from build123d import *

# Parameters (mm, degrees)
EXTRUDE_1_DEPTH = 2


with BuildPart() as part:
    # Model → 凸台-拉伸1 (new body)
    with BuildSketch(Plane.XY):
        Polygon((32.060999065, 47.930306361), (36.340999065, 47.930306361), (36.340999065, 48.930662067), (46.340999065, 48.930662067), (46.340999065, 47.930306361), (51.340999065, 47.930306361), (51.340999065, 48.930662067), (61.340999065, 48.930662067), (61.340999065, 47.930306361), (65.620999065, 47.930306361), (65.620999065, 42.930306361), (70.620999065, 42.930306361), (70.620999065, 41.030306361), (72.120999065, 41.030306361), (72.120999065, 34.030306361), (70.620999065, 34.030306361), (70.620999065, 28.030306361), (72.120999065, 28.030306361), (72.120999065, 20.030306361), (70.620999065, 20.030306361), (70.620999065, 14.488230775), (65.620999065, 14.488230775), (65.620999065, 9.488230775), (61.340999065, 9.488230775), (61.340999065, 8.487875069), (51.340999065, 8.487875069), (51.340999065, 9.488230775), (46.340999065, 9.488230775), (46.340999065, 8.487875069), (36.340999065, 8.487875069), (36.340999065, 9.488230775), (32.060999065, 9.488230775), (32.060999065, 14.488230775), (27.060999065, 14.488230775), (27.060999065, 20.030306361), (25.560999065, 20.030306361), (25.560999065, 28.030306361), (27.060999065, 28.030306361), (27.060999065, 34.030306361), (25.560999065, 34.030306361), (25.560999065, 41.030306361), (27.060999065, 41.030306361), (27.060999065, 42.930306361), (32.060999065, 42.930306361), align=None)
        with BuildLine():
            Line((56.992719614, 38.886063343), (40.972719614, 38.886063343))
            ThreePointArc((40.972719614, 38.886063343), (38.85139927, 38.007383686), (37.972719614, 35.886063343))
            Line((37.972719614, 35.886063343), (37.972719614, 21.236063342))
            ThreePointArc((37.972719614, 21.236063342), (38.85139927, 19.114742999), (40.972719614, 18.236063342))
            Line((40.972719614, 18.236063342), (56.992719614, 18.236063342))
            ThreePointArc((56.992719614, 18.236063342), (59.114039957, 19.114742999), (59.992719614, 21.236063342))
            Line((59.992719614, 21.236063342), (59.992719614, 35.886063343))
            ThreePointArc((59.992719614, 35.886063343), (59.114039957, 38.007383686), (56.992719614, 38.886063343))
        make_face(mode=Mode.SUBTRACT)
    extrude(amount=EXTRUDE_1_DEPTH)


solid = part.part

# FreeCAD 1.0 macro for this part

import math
import FreeCAD as App
import Part
import Sketcher
from FreeCAD import Vector

doc = App.newDocument("Part")
params = doc.addObject("Spreadsheet::Sheet", "Params")
for row, (alias, value) in enumerate([
    ("sketch1_radius", "3 mm"),
    ("sketch1_width", "5 mm"),
    ("sketch1_width2", "10 mm"),
    ("sketch1_height", "7 mm"),
    ("sketch1_height2", "6 mm"),
    ("pad1_length", "2 mm"),
], start=1):
    params.set(f"A{row}", alias)
    params.set(f"B{row}", "=" + value)
    params.setAlias(f"B{row}", alias)

body = doc.addObject("PartDesign::Body", "Body")

sketch1 = body.newObject("Sketcher::SketchObject", "Sketch")
sketch1.AttachmentSupport = (doc.getObject("XY_Plane"), [""])
sketch1.MapMode = "FlatFace"
sketch1.addGeometry(Part.LineSegment(Vector(36.340999, 47.930306, 0), Vector(32.060999, 47.930306, 0)), False)
sketch1.addGeometry(Part.LineSegment(Vector(32.060999, 47.930306, 0), Vector(32.060999, 42.930306, 0)), False)
sketch1.addGeometry(Part.LineSegment(Vector(32.060999, 42.930306, 0), Vector(27.060999, 42.930306, 0)), False)
sketch1.addGeometry(Part.LineSegment(Vector(27.060999, 42.930306, 0), Vector(27.060999, 41.030306, 0)), False)
sketch1.addGeometry(Part.LineSegment(Vector(27.060999, 41.030306, 0), Vector(25.560999, 41.030306, 0)), False)
sketch1.addGeometry(Part.LineSegment(Vector(25.560999, 41.030306, 0), Vector(25.560999, 34.030306, 0)), False)
sketch1.addGeometry(Part.LineSegment(Vector(25.560999, 34.030306, 0), Vector(27.060999, 34.030306, 0)), False)
sketch1.addGeometry(Part.LineSegment(Vector(27.060999, 34.030306, 0), Vector(27.060999, 28.030306, 0)), False)
sketch1.addGeometry(Part.LineSegment(Vector(27.060999, 28.030306, 0), Vector(25.560999, 28.030306, 0)), False)
sketch1.addGeometry(Part.LineSegment(Vector(25.560999, 28.030306, 0), Vector(25.560999, 20.030306, 0)), False)
sketch1.addGeometry(Part.LineSegment(Vector(25.560999, 20.030306, 0), Vector(27.060999, 20.030306, 0)), False)
sketch1.addGeometry(Part.LineSegment(Vector(27.060999, 20.030306, 0), Vector(27.060999, 14.488231, 0)), False)
sketch1.addGeometry(Part.LineSegment(Vector(27.060999, 14.488231, 0), Vector(32.060999, 14.488231, 0)), False)
sketch1.addGeometry(Part.LineSegment(Vector(32.060999, 14.488231, 0), Vector(32.060999, 9.488231, 0)), False)
sketch1.addGeometry(Part.LineSegment(Vector(32.060999, 9.488231, 0), Vector(36.340999, 9.488231, 0)), False)
sketch1.addGeometry(Part.LineSegment(Vector(36.340999, 9.488231, 0), Vector(36.340999, 8.487875, 0)), False)
sketch1.addGeometry(Part.LineSegment(Vector(36.340999, 8.487875, 0), Vector(46.340999, 8.487875, 0)), False)
sketch1.addGeometry(Part.LineSegment(Vector(46.340999, 8.487875, 0), Vector(46.340999, 9.488231, 0)), False)
sketch1.addGeometry(Part.LineSegment(Vector(46.340999, 9.488231, 0), Vector(51.340999, 9.488231, 0)), False)
sketch1.addGeometry(Part.LineSegment(Vector(51.340999, 9.488231, 0), Vector(51.340999, 8.487875, 0)), False)
sketch1.addGeometry(Part.LineSegment(Vector(51.340999, 8.487875, 0), Vector(61.340999, 8.487875, 0)), False)
sketch1.addGeometry(Part.LineSegment(Vector(61.340999, 8.487875, 0), Vector(61.340999, 9.488231, 0)), False)
sketch1.addGeometry(Part.LineSegment(Vector(61.340999, 9.488231, 0), Vector(65.620999, 9.488231, 0)), False)
sketch1.addGeometry(Part.LineSegment(Vector(65.620999, 9.488231, 0), Vector(65.620999, 14.488231, 0)), False)
sketch1.addGeometry(Part.LineSegment(Vector(65.620999, 14.488231, 0), Vector(70.620999, 14.488231, 0)), False)
sketch1.addGeometry(Part.LineSegment(Vector(70.620999, 14.488231, 0), Vector(70.620999, 20.030306, 0)), False)
sketch1.addGeometry(Part.LineSegment(Vector(70.620999, 20.030306, 0), Vector(72.120999, 20.030306, 0)), False)
sketch1.addGeometry(Part.LineSegment(Vector(72.120999, 20.030306, 0), Vector(72.120999, 28.030306, 0)), False)
sketch1.addGeometry(Part.LineSegment(Vector(72.120999, 28.030306, 0), Vector(70.620999, 28.030306, 0)), False)
sketch1.addGeometry(Part.LineSegment(Vector(70.620999, 28.030306, 0), Vector(70.620999, 34.030306, 0)), False)
sketch1.addGeometry(Part.LineSegment(Vector(70.620999, 34.030306, 0), Vector(72.120999, 34.030306, 0)), False)
sketch1.addGeometry(Part.LineSegment(Vector(72.120999, 34.030306, 0), Vector(72.120999, 41.030306, 0)), False)
sketch1.addGeometry(Part.LineSegment(Vector(72.120999, 41.030306, 0), Vector(70.620999, 41.030306, 0)), False)
sketch1.addGeometry(Part.LineSegment(Vector(70.620999, 41.030306, 0), Vector(70.620999, 42.930306, 0)), False)
sketch1.addGeometry(Part.LineSegment(Vector(70.620999, 42.930306, 0), Vector(65.620999, 42.930306, 0)), False)
sketch1.addGeometry(Part.LineSegment(Vector(65.620999, 42.930306, 0), Vector(65.620999, 47.930306, 0)), False)
sketch1.addGeometry(Part.LineSegment(Vector(65.620999, 47.930306, 0), Vector(61.340999, 47.930306, 0)), False)
sketch1.addGeometry(Part.LineSegment(Vector(61.340999, 47.930306, 0), Vector(61.340999, 48.930662, 0)), False)
sketch1.addGeometry(Part.LineSegment(Vector(61.340999, 48.930662, 0), Vector(51.340999, 48.930662, 0)), False)
sketch1.addGeometry(Part.LineSegment(Vector(51.340999, 48.930662, 0), Vector(51.340999, 47.930306, 0)), False)
sketch1.addGeometry(Part.LineSegment(Vector(51.340999, 47.930306, 0), Vector(46.340999, 47.930306, 0)), False)
sketch1.addGeometry(Part.LineSegment(Vector(46.340999, 47.930306, 0), Vector(46.340999, 48.930662, 0)), False)
sketch1.addGeometry(Part.LineSegment(Vector(46.340999, 48.930662, 0), Vector(36.340999, 48.930662, 0)), False)
sketch1.addGeometry(Part.LineSegment(Vector(36.340999, 48.930662, 0), Vector(36.340999, 47.930306, 0)), False)
sketch1.addGeometry(Part.ArcOfCircle(Part.Circle(Vector(56.99272, 35.886063, 0), Vector(0, 0, 1), 3), math.radians(0), math.radians(90)), False)
sketch1.addGeometry(Part.LineSegment(Vector(59.99272, 35.886063, 0), Vector(59.99272, 21.236063, 0)), False)
sketch1.addGeometry(Part.ArcOfCircle(Part.Circle(Vector(56.99272, 21.236063, 0), Vector(0, 0, 1), 3), math.radians(-90), math.radians(0)), False)
sketch1.addGeometry(Part.LineSegment(Vector(56.99272, 18.236063, 0), Vector(40.97272, 18.236063, 0)), False)
sketch1.addGeometry(Part.ArcOfCircle(Part.Circle(Vector(40.97272, 21.236063, 0), Vector(0, 0, 1), 3), math.radians(180), math.radians(270)), False)
sketch1.addGeometry(Part.LineSegment(Vector(37.97272, 21.236063, 0), Vector(37.97272, 35.886063, 0)), False)
sketch1.addGeometry(Part.ArcOfCircle(Part.Circle(Vector(40.97272, 35.886063, 0), Vector(0, 0, 1), 3), math.radians(90), math.radians(180)), False)
sketch1.addGeometry(Part.LineSegment(Vector(40.97272, 38.886063, 0), Vector(56.99272, 38.886063, 0)), False)
sketch1.addConstraint(Sketcher.Constraint("Coincident", 0, 2, 1, 1))
sketch1.addConstraint(Sketcher.Constraint("Coincident", 1, 2, 2, 1))
sketch1.addConstraint(Sketcher.Constraint("Coincident", 2, 2, 3, 1))
sketch1.addConstraint(Sketcher.Constraint("Coincident", 3, 2, 4, 1))
sketch1.addConstraint(Sketcher.Constraint("Coincident", 4, 2, 5, 1))
sketch1.addConstraint(Sketcher.Constraint("Coincident", 5, 2, 6, 1))
sketch1.addConstraint(Sketcher.Constraint("Coincident", 6, 2, 7, 1))
sketch1.addConstraint(Sketcher.Constraint("Coincident", 7, 2, 8, 1))
sketch1.addConstraint(Sketcher.Constraint("Coincident", 8, 2, 9, 1))
sketch1.addConstraint(Sketcher.Constraint("Coincident", 9, 2, 10, 1))
sketch1.addConstraint(Sketcher.Constraint("Coincident", 10, 2, 11, 1))
sketch1.addConstraint(Sketcher.Constraint("Coincident", 11, 2, 12, 1))
sketch1.addConstraint(Sketcher.Constraint("Coincident", 12, 2, 13, 1))
sketch1.addConstraint(Sketcher.Constraint("Coincident", 13, 2, 14, 1))
sketch1.addConstraint(Sketcher.Constraint("Coincident", 14, 2, 15, 1))
sketch1.addConstraint(Sketcher.Constraint("Coincident", 15, 2, 16, 1))
sketch1.addConstraint(Sketcher.Constraint("Coincident", 16, 2, 17, 1))
sketch1.addConstraint(Sketcher.Constraint("Coincident", 17, 2, 18, 1))
sketch1.addConstraint(Sketcher.Constraint("Coincident", 18, 2, 19, 1))
sketch1.addConstraint(Sketcher.Constraint("Coincident", 19, 2, 20, 1))
sketch1.addConstraint(Sketcher.Constraint("Coincident", 20, 2, 21, 1))
sketch1.addConstraint(Sketcher.Constraint("Coincident", 21, 2, 22, 1))
sketch1.addConstraint(Sketcher.Constraint("Coincident", 22, 2, 23, 1))
sketch1.addConstraint(Sketcher.Constraint("Coincident", 23, 2, 24, 1))
sketch1.addConstraint(Sketcher.Constraint("Coincident", 24, 2, 25, 1))
sketch1.addConstraint(Sketcher.Constraint("Coincident", 25, 2, 26, 1))
sketch1.addConstraint(Sketcher.Constraint("Coincident", 26, 2, 27, 1))
sketch1.addConstraint(Sketcher.Constraint("Coincident", 27, 2, 28, 1))
sketch1.addConstraint(Sketcher.Constraint("Coincident", 28, 2, 29, 1))
sketch1.addConstraint(Sketcher.Constraint("Coincident", 29, 2, 30, 1))
sketch1.addConstraint(Sketcher.Constraint("Coincident", 30, 2, 31, 1))
sketch1.addConstraint(Sketcher.Constraint("Coincident", 31, 2, 32, 1))
sketch1.addConstraint(Sketcher.Constraint("Coincident", 32, 2, 33, 1))
sketch1.addConstraint(Sketcher.Constraint("Coincident", 33, 2, 34, 1))
sketch1.addConstraint(Sketcher.Constraint("Coincident", 34, 2, 35, 1))
sketch1.addConstraint(Sketcher.Constraint("Coincident", 35, 2, 36, 1))
sketch1.addConstraint(Sketcher.Constraint("Coincident", 36, 2, 37, 1))
sketch1.addConstraint(Sketcher.Constraint("Coincident", 37, 2, 38, 1))
sketch1.addConstraint(Sketcher.Constraint("Coincident", 38, 2, 39, 1))
sketch1.addConstraint(Sketcher.Constraint("Coincident", 39, 2, 40, 1))
sketch1.addConstraint(Sketcher.Constraint("Coincident", 40, 2, 41, 1))
sketch1.addConstraint(Sketcher.Constraint("Coincident", 41, 2, 42, 1))
sketch1.addConstraint(Sketcher.Constraint("Coincident", 42, 2, 43, 1))
sketch1.addConstraint(Sketcher.Constraint("Coincident", 43, 2, 0, 1))
sketch1.addConstraint(Sketcher.Constraint("Tangent", 44, 1, 45, 1))
sketch1.addConstraint(Sketcher.Constraint("Tangent", 45, 2, 46, 2))
sketch1.addConstraint(Sketcher.Constraint("Tangent", 46, 1, 47, 1))
sketch1.addConstraint(Sketcher.Constraint("Tangent", 47, 2, 48, 2))
sketch1.addConstraint(Sketcher.Constraint("Tangent", 48, 1, 49, 1))
sketch1.addConstraint(Sketcher.Constraint("Tangent", 49, 2, 50, 2))
sketch1.addConstraint(Sketcher.Constraint("Tangent", 50, 1, 51, 1))
sketch1.addConstraint(Sketcher.Constraint("Tangent", 51, 2, 44, 2))
sketch1.addConstraint(Sketcher.Constraint("Horizontal", 0))
sketch1.addConstraint(Sketcher.Constraint("Vertical", 1))
sketch1.addConstraint(Sketcher.Constraint("Horizontal", 2))
sketch1.addConstraint(Sketcher.Constraint("Vertical", 3))
sketch1.addConstraint(Sketcher.Constraint("Horizontal", 4))
sketch1.addConstraint(Sketcher.Constraint("Vertical", 5))
sketch1.addConstraint(Sketcher.Constraint("Horizontal", 6))
sketch1.addConstraint(Sketcher.Constraint("Vertical", 7))
sketch1.addConstraint(Sketcher.Constraint("Horizontal", 8))
sketch1.addConstraint(Sketcher.Constraint("Vertical", 9))
sketch1.addConstraint(Sketcher.Constraint("Horizontal", 10))
sketch1.addConstraint(Sketcher.Constraint("Vertical", 11))
sketch1.addConstraint(Sketcher.Constraint("Horizontal", 12))
sketch1.addConstraint(Sketcher.Constraint("Vertical", 13))
sketch1.addConstraint(Sketcher.Constraint("Horizontal", 14))
sketch1.addConstraint(Sketcher.Constraint("Vertical", 15))
sketch1.addConstraint(Sketcher.Constraint("Horizontal", 16))
sketch1.addConstraint(Sketcher.Constraint("Vertical", 17))
sketch1.addConstraint(Sketcher.Constraint("Horizontal", 18))
sketch1.addConstraint(Sketcher.Constraint("Vertical", 19))
sketch1.addConstraint(Sketcher.Constraint("Horizontal", 20))
sketch1.addConstraint(Sketcher.Constraint("Vertical", 21))
sketch1.addConstraint(Sketcher.Constraint("Horizontal", 22))
sketch1.addConstraint(Sketcher.Constraint("Vertical", 23))
sketch1.addConstraint(Sketcher.Constraint("Horizontal", 24))
sketch1.addConstraint(Sketcher.Constraint("Vertical", 25))
sketch1.addConstraint(Sketcher.Constraint("Horizontal", 26))
sketch1.addConstraint(Sketcher.Constraint("Vertical", 27))
sketch1.addConstraint(Sketcher.Constraint("Horizontal", 28))
sketch1.addConstraint(Sketcher.Constraint("Vertical", 29))
sketch1.addConstraint(Sketcher.Constraint("Horizontal", 30))
sketch1.addConstraint(Sketcher.Constraint("Vertical", 31))
sketch1.addConstraint(Sketcher.Constraint("Horizontal", 32))
sketch1.addConstraint(Sketcher.Constraint("Vertical", 33))
sketch1.addConstraint(Sketcher.Constraint("Horizontal", 34))
sketch1.addConstraint(Sketcher.Constraint("Vertical", 35))
sketch1.addConstraint(Sketcher.Constraint("Horizontal", 36))
sketch1.addConstraint(Sketcher.Constraint("Vertical", 37))
sketch1.addConstraint(Sketcher.Constraint("Horizontal", 38))
sketch1.addConstraint(Sketcher.Constraint("Vertical", 39))
sketch1.addConstraint(Sketcher.Constraint("Horizontal", 40))
sketch1.addConstraint(Sketcher.Constraint("Vertical", 41))
sketch1.addConstraint(Sketcher.Constraint("Horizontal", 42))
sketch1.addConstraint(Sketcher.Constraint("Vertical", 43))
sketch1.addConstraint(Sketcher.Constraint("Vertical", 45))
sketch1.addConstraint(Sketcher.Constraint("Horizontal", 47))
sketch1.addConstraint(Sketcher.Constraint("Vertical", 49))
sketch1.addConstraint(Sketcher.Constraint("Horizontal", 51))
sketch1.addConstraint(Sketcher.Constraint("Equal", 44, 46))
sketch1.addConstraint(Sketcher.Constraint("Equal", 46, 48))
sketch1.addConstraint(Sketcher.Constraint("Equal", 48, 50))
sketch1.addConstraint(Sketcher.Constraint("Horizontal", 14, 2, 17, 2))
sketch1.addConstraint(Sketcher.Constraint("Horizontal", 16, 2, 19, 2))
sketch1.addConstraint(Sketcher.Constraint("Horizontal", 18, 2, 21, 2))
sketch1.addConstraint(Sketcher.Constraint("Horizontal", 12, 2, 23, 2))
sketch1.addConstraint(Sketcher.Constraint("Horizontal", 10, 2, 25, 2))
sketch1.addConstraint(Sketcher.Constraint("Horizontal", 8, 2, 27, 2))
sketch1.addConstraint(Sketcher.Constraint("Horizontal", 6, 2, 29, 2))
sketch1.addConstraint(Sketcher.Constraint("Horizontal", 4, 2, 31, 2))
sketch1.addConstraint(Sketcher.Constraint("Horizontal", 2, 2, 33, 2))
sketch1.addConstraint(Sketcher.Constraint("Horizontal", 0, 2, 35, 2))
sketch1.addConstraint(Sketcher.Constraint("Horizontal", 36, 2, 39, 2))
sketch1.addConstraint(Sketcher.Constraint("Horizontal", 38, 2, 41, 2))
sketch1.addConstraint(Sketcher.Constraint("Vertical", 3, 2, 6, 2))
sketch1.addConstraint(Sketcher.Constraint("Vertical", 5, 2, 8, 2))
sketch1.addConstraint(Sketcher.Constraint("Vertical", 7, 2, 10, 2))
sketch1.addConstraint(Sketcher.Constraint("Vertical", 1, 2, 12, 2))
sketch1.addConstraint(Sketcher.Constraint("Vertical", 25, 2, 28, 2))
sketch1.addConstraint(Sketcher.Constraint("Vertical", 27, 2, 30, 2))
sketch1.addConstraint(Sketcher.Constraint("Vertical", 29, 2, 32, 2))
sketch1.addConstraint(Sketcher.Constraint("Vertical", 23, 2, 34, 2))
sketch1.addConstraint(Sketcher.Constraint("Vertical", 21, 2, 36, 2))
sketch1.addConstraint(Sketcher.Constraint("Vertical", 19, 2, 38, 2))
sketch1.addConstraint(Sketcher.Constraint("Vertical", 17, 2, 40, 2))
sketch1.addConstraint(Sketcher.Constraint("Vertical", 15, 2, 42, 2))
sketch1.addConstraint(Sketcher.Constraint("Equal", 12, 18))
sketch1.addConstraint(Sketcher.Constraint("Equal", 16, 20))
sketch1.addConstraint(Sketcher.Constraint("Equal", 14, 22))
sketch1.addConstraint(Sketcher.Constraint("Equal", 18, 24))
sketch1.addConstraint(Sketcher.Constraint("Equal", 10, 26))
sketch1.addConstraint(Sketcher.Constraint("Equal", 40, 1))
sketch1.addConstraint(Sketcher.Constraint("Equal", 1, 13))
sketch1.addConstraint(Sketcher.Constraint("Equal", 21, 37))
sketch1.addConstraint(Sketcher.Constraint("Radius", 44, 3.0))
sketch1.addConstraint(Sketcher.Constraint("DistanceX", 2, 2, 2, 1, 5.0))
sketch1.addConstraint(Sketcher.Constraint("DistanceX", 16, 1, 16, 2, 10.0))
sketch1.addConstraint(Sketcher.Constraint("DistanceY", 5, 2, 5, 1, 7.0))
sketch1.addConstraint(Sketcher.Constraint("DistanceY", 7, 2, 7, 1, 6.0))
sketch1.addConstraint(Sketcher.Constraint("DistanceY", 9, 2, 9, 1, 8.0))
sketch1.addConstraint(Sketcher.Constraint("DistanceX", 4, 2, 4, 1, 1.5))
sketch1.addConstraint(Sketcher.Constraint("DistanceY", 3, 2, 3, 1, 1.9))
sketch1.addConstraint(Sketcher.Constraint("DistanceX", 0, 2, 0, 1, 4.28))
sketch1.addConstraint(Sketcher.Constraint("DistanceX", 47, 2, 47, 1, 16.02))
sketch1.addConstraint(Sketcher.Constraint("DistanceY", 45, 2, 45, 1, 14.65))
sketch1.addConstraint(Sketcher.Constraint("DistanceX", -1, 1, 0, 2, 32.060999))
sketch1.addConstraint(Sketcher.Constraint("DistanceY", 44, 3, 38, 2, 13.044599))
sketch1.addConstraint(Sketcher.Constraint("DistanceY", 11, 2, 11, 1, 5.542076))
sketch1.addConstraint(Sketcher.Constraint("DistanceY", 15, 2, 15, 1, 1.000356))
sketch1.addConstraint(Sketcher.Constraint("DistanceX", -1, 1, 44, 3, 56.99272))
sketch1.addConstraint(Sketcher.Constraint("DistanceY", -1, 1, 11, 2, 14.488231))
sketch1.setExpression("Constraints[135]", "Params.sketch1_radius")
sketch1.setExpression("Constraints[136]", "Params.sketch1_width")
sketch1.setExpression("Constraints[137]", "Params.sketch1_width2")
sketch1.setExpression("Constraints[138]", "Params.sketch1_height")
sketch1.setExpression("Constraints[139]", "Params.sketch1_height2")
pad1 = body.newObject("PartDesign::Pad", "Pad")
pad1.Profile = sketch1
pad1.setExpression("Length", "Params.pad1_length")

doc.recompute()
